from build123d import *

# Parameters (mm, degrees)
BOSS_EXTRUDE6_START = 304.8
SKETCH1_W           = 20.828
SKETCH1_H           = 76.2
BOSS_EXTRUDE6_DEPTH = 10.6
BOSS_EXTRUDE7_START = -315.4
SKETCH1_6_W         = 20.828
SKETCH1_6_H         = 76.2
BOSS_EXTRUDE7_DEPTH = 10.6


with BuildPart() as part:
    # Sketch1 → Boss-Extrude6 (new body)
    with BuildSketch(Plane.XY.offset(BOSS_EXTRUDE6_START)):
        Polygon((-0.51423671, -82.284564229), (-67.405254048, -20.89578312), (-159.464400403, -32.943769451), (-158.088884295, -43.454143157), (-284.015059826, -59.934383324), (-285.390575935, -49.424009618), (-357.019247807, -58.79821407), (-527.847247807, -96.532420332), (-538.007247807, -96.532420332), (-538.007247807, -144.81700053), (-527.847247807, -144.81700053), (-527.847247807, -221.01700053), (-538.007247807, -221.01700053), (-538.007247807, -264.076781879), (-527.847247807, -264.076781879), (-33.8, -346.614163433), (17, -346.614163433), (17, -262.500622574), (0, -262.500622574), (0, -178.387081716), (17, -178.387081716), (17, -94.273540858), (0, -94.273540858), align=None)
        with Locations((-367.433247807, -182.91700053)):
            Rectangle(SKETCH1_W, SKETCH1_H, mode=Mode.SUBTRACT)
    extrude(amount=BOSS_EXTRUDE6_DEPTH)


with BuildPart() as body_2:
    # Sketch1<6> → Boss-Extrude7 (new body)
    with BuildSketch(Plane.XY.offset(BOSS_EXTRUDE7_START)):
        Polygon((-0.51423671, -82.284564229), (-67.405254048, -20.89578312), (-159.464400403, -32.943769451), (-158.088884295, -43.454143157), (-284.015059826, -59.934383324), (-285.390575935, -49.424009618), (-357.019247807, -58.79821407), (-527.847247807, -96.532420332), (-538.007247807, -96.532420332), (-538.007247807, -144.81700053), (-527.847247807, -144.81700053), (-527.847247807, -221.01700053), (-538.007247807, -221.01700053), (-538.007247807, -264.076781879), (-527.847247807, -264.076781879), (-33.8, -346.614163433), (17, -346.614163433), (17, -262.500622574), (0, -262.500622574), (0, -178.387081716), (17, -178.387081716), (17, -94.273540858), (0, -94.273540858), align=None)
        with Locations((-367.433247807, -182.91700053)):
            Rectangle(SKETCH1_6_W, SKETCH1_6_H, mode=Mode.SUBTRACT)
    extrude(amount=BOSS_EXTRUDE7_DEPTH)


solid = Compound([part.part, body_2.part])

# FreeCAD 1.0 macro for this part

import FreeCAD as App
import Part
import Sketcher
Q = App.Units.Quantity


def add_polygon(sketch, points):
    """Adds a closed chain of lines whose ends are joined by coincident constraints."""
    first, n = sketch.GeometryCount, len(points)
    for a, b in zip(points, points[1:] + points[:1]):
        sketch.addGeometry(Part.LineSegment(App.Vector(*a, 0), App.Vector(*b, 0)), False)
    for i in range(n):
        sketch.addConstraint(Sketcher.Constraint("Coincident", first + i, 2, first + (i + 1) % n, 1))

doc = App.newDocument("Part")
body = doc.addObject("PartDesign::Body", "Body")

sketch1 = doc.addObject("Sketcher::SketchObject", "Sketch")
body.addObject(sketch1)
sketch1.AttachmentSupport = (doc.XY_Plane, [""])
sketch1.MapMode = "FlatFace"
sketch1.AttachmentOffset = App.Placement(App.Vector(0, 0, 12 * 25.4), App.Rotation())
add_polygon(sketch1, [(-0.514237, -82.284564), (-67.405254, -20.895783), (-159.4644, -32.943769), (-158.088884, -43.454143), (-284.01506, -59.934383), (-285.390576, -49.42401), (-357.019248, -58.798214), (-527.847248, -96.53242), (-538.007248, -96.53242), (-538.007248, -144.817001), (-527.847248, -144.817001), (-527.847248, -221.017001), (-538.007248, -221.017001), (-538.007248, -264.076782), (-527.847248, -264.076782), (-33.8, -346.614163), (17, -346.614163), (17, -262.500623), (0, -262.500623), (0, -178.387082), (17, -178.387082), (17, -94.273541), (0, -94.273541)])
add_polygon(sketch1, [(-357.019248, -221.017001), (-377.847248, -221.017001), (-377.847248, -144.817001), (-357.019248, -144.817001)])
sketch1.addConstraint([
    Sketcher.Constraint("Horizontal", 7),
    Sketcher.Constraint("Vertical", 8),
    Sketcher.Constraint("Horizontal", 9),
    Sketcher.Constraint("Vertical", 10),
    Sketcher.Constraint("Horizontal", 11),
    Sketcher.Constraint("Vertical", 12),
    Sketcher.Constraint("Horizontal", 13),
    Sketcher.Constraint("Horizontal", 15),
    Sketcher.Constraint("Vertical", 16),
    Sketcher.Constraint("Horizontal", 17),
    Sketcher.Constraint("Vertical", 18),
    Sketcher.Constraint("Horizontal", 19),
    Sketcher.Constraint("Vertical", 20),
    Sketcher.Constraint("Horizontal", 21),
    Sketcher.Constraint("Horizontal", 23),
    Sketcher.Constraint("Vertical", 24),
    Sketcher.Constraint("Horizontal", 25),
    Sketcher.Constraint("Vertical", 26),
    Sketcher.Constraint("PointOnObject", 17, 2, -2),
    Sketcher.Constraint("PointOnObject", 21, 2, -2),
    Sketcher.Constraint("DistanceX", 15, 1, 15, 2, Q("2 in")),
    Sketcher.Constraint("DistanceY", 10, 2, 10, 1, Q("3 in")),
    Sketcher.Constraint("DistanceY", 24, 1, 24, 2, Q("3 in")),
    Sketcher.Constraint("Distance", 3, Q("5 in")),
    Sketcher.Constraint("DistanceX", 7, 2, 7, 1, Q("0.4 in")),
    Sketcher.Constraint("DistanceX", 9, 1, 9, 2, Q("0.4 in")),
    Sketcher.Constraint("DistanceX", 11, 2, 11, 1, Q("0.4 in")),
    Sketcher.Constraint("DistanceX", 13, 1, 13, 2, Q("0.4 in")),
    Sketcher.Constraint("DistanceX", 14, 2, 19, 2, Q("2 in")),
    Sketcher.Constraint("DistanceX", 23, 2, 23, 1, Q("0.82 in")),
    Sketcher.Constraint("DistanceX", 23, 2, 5, 2, Q("0.82 in")),
    Sketcher.Constraint("DistanceX", 17, 2, 17, 1, 17.0),
    Sketcher.Constraint("Distance", 2, 10.6),
    Sketcher.Constraint("Distance", 4, 10.6),
    Sketcher.Constraint("Distance", 22, 12.0),
    Sketcher.Constraint("DistanceY", 8, 2, 8, 1, 48.28458),
    Sketcher.Constraint("DistanceY", 12, 2, 12, 1, 43.059781),
    Sketcher.Constraint("DistanceY", 16, 1, 16, 2, 84.113541),
    Sketcher.Constraint("DistanceY", 18, 1, 18, 2, 84.113541),
    Sketcher.Constraint("DistanceY", 20, 1, 20, 2, 84.113541),
    Sketcher.Constraint("DistanceX", 1, 2, -1, 1, 159.4644),
    Sketcher.Constraint("DistanceY", 8, 2, -1, 1, 144.817001),
    Sketcher.Constraint("DistanceY", 23, 2, -1, 1, 221.017001),
    Sketcher.Constraint("DistanceY", 3, 2, 0, 2, 39.0386),
    Sketcher.Constraint("DistanceX", 6, 2, 5, 2, 170.828),
    Sketcher.Constraint("DistanceY", 18, 2, 0, 2, 157.491299),
    Sketcher.Constraint("Distance", 5, 72.239479),
    Sketcher.Constraint("DistanceY", 1, 2, -1, 1, 32.943769),
    Sketcher.Constraint("DistanceX", 3, 2, -1, 1, 284.01506),
    Sketcher.Constraint("DistanceY", 4, 2, -1, 1, 49.42401),
    Sketcher.Constraint("DistanceY", 18, 2, -1, 1, 178.387082),
    Sketcher.Constraint("DistanceX", 2, 2, 0, 2, 90.68363),
    Sketcher.Constraint("DistanceX", 5, 2, 4, 2, 71.628672),
    Sketcher.Constraint("DistanceY", 22, 2, 0, 2, 61.388781),
])
pad1 = doc.addObject("PartDesign::Pad", "Pad")
body.addObject(pad1)
pad1.Profile = sketch1
pad1.Length = 10.6
body2 = doc.addObject("PartDesign::Body", "Body001")

sketch2 = doc.addObject("Sketcher::SketchObject", "Sketch001")
body2.addObject(sketch2)
sketch2.AttachmentSupport = (doc.getObject("XY_Plane001"), [""])
sketch2.MapMode = "FlatFace"
sketch2.AttachmentOffset = App.Placement(App.Vector(0, 0, -315.4), App.Rotation())
add_polygon(sketch2, [(-0.514237, -82.284564), (-67.405254, -20.895783), (-159.4644, -32.943769), (-158.088884, -43.454143), (-284.01506, -59.934383), (-285.390576, -49.42401), (-357.019248, -58.798214), (-527.847248, -96.53242), (-538.007248, -96.53242), (-538.007248, -144.817001), (-527.847248, -144.817001), (-527.847248, -221.017001), (-538.007248, -221.017001), (-538.007248, -264.076782), (-527.847248, -264.076782), (-33.8, -346.614163), (17, -346.614163), (17, -262.500623), (0, -262.500623), (0, -178.387082), (17, -178.387082), (17, -94.273541), (0, -94.273541)])
add_polygon(sketch2, [(-357.019248, -221.017001), (-377.847248, -221.017001), (-377.847248, -144.817001), (-357.019248, -144.817001)])
sketch2.addConstraint([
    Sketcher.Constraint("Horizontal", 7),
    Sketcher.Constraint("Vertical", 8),
    Sketcher.Constraint("Horizontal", 9),
    Sketcher.Constraint("Vertical", 10),
    Sketcher.Constraint("Horizontal", 11),
    Sketcher.Constraint("Vertical", 12),
    Sketcher.Constraint("Horizontal", 13),
    Sketcher.Constraint("Horizontal", 15),
    Sketcher.Constraint("Vertical", 16),
    Sketcher.Constraint("Horizontal", 17),
    Sketcher.Constraint("Vertical", 18),
    Sketcher.Constraint("Horizontal", 19),
    Sketcher.Constraint("Vertical", 20),
    Sketcher.Constraint("Horizontal", 21),
    Sketcher.Constraint("Horizontal", 23),
    Sketcher.Constraint("Vertical", 24),
    Sketcher.Constraint("Horizontal", 25),
    Sketcher.Constraint("Vertical", 26),
    Sketcher.Constraint("PointOnObject", 17, 2, -2),
    Sketcher.Constraint("PointOnObject", 21, 2, -2),
    Sketcher.Constraint("DistanceX", 15, 1, 15, 2, Q("2 in")),
    Sketcher.Constraint("DistanceY", 10, 2, 10, 1, Q("3 in")),
    Sketcher.Constraint("DistanceY", 24, 1, 24, 2, Q("3 in")),
    Sketcher.Constraint("Distance", 3, Q("5 in")),
    Sketcher.Constraint("DistanceX", 7, 2, 7, 1, Q("0.4 in")),
    Sketcher.Constraint("DistanceX", 9, 1, 9, 2, Q("0.4 in")),
    Sketcher.Constraint("DistanceX", 11, 2, 11, 1, Q("0.4 in")),
    Sketcher.Constraint("DistanceX", 13, 1, 13, 2, Q("0.4 in")),
    Sketcher.Constraint("DistanceX", 14, 2, 19, 2, Q("2 in")),
    Sketcher.Constraint("DistanceX", 23, 2, 23, 1, Q("0.82 in")),
    Sketcher.Constraint("DistanceX", 23, 2, 5, 2, Q("0.82 in")),
    Sketcher.Constraint("DistanceX", 17, 2, 17, 1, 17.0),
    Sketcher.Constraint("Distance", 2, 10.6),
    Sketcher.Constraint("Distance", 4, 10.6),
    Sketcher.Constraint("Distance", 22, 12.0),
    Sketcher.Constraint("DistanceY", 8, 2, 8, 1, 48.28458),
    Sketcher.Constraint("DistanceY", 12, 2, 12, 1, 43.059781),
    Sketcher.Constraint("DistanceY", 16, 1, 16, 2, 84.113541),
    Sketcher.Constraint("DistanceY", 18, 1, 18, 2, 84.113541),
    Sketcher.Constraint("DistanceY", 20, 1, 20, 2, 84.113541),
    Sketcher.Constraint("DistanceX", 1, 2, -1, 1, 159.4644),
    Sketcher.Constraint("DistanceY", 8, 2, -1, 1, 144.817001),
    Sketcher.Constraint("DistanceY", 23, 2, -1, 1, 221.017001),
    Sketcher.Constraint("DistanceY", 3, 2, 0, 2, 39.0386),
    Sketcher.Constraint("DistanceX", 6, 2, 5, 2, 170.828),
    Sketcher.Constraint("DistanceY", 18, 2, 0, 2, 157.491299),
    Sketcher.Constraint("Distance", 5, 72.239479),
    Sketcher.Constraint("DistanceY", 1, 2, -1, 1, 32.943769),
    Sketcher.Constraint("DistanceX", 3, 2, -1, 1, 284.01506),
    Sketcher.Constraint("DistanceY", 4, 2, -1, 1, 49.42401),
    Sketcher.Constraint("DistanceY", 18, 2, -1, 1, 178.387082),
    Sketcher.Constraint("DistanceX", 2, 2, 0, 2, 90.68363),
    Sketcher.Constraint("DistanceX", 5, 2, 4, 2, 71.628672),
    Sketcher.Constraint("DistanceY", 22, 2, 0, 2, 61.388781),
])
pad2 = doc.addObject("PartDesign::Pad", "Pad001")
body2.addObject(pad2)
pad2.Profile = sketch2
pad2.Length = 10.6

doc.recompute()
